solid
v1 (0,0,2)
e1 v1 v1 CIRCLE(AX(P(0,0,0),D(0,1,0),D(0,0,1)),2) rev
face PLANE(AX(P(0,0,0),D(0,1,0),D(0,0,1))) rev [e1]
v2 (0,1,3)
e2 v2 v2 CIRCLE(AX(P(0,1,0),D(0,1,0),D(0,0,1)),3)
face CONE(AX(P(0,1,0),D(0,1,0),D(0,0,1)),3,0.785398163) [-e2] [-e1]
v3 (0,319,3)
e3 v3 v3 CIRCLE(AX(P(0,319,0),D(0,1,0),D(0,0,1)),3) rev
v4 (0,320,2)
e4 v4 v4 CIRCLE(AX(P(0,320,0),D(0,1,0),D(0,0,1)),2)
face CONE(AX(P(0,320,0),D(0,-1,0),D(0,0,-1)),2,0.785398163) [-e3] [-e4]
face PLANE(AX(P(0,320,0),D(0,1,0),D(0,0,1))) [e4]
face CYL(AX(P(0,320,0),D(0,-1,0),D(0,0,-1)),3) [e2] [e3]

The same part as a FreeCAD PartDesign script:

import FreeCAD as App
import Part
import Sketcher
from FreeCAD import Vector
Q = App.Units.Quantity


def edges_at(feature, points):
    """Names of the edges that pass closest to the given points."""
    edges = feature.Shape.Edges
    near = lambda p: min(range(len(edges)), key=lambda i: edges[i].distToShape(Part.Vertex(*p))[0])
    return sorted({f"Edge{near(p) + 1}" for p in points})

doc = App.newDocument("Part")
body = doc.addObject("PartDesign::Body", "Body")

# Sketch on XZ plane
sketch1 = body.newObject("Sketcher::SketchObject", "Sketch")
sketch1.AttachmentSupport = (doc.getObject("XZ_Plane"), [""])
sketch1.MapMode = "FlatFace"
sketch1.addGeometry(Part.Circle(Vector(0, 0, 0), Vector(0, 0, 1), 3), False)
sketch1.addConstraint([
    Sketcher.Constraint("Coincident", 0, 3, -1, 1),
    Sketcher.Constraint("Diameter", 0, Q("6 mm")),
])
pad1 = body.newObject("PartDesign::Pad", "Pad")
pad1.Profile = sketch1
pad1.Length = 320
pad1.Reversed = True
doc.recompute()

chamfer = body.newObject("PartDesign::Chamfer", "Chamfer")
chamfer.Base = (pad1, edges_at(pad1, [(-3, 320, 0)]))
chamfer.Size = 1
doc.recompute()

chamfer2 = body.newObject("PartDesign::Chamfer", "Chamfer001")
chamfer2.Base = (chamfer, edges_at(chamfer, [(-3, 0, 0)]))
chamfer2.Size = 1

doc.recompute()
